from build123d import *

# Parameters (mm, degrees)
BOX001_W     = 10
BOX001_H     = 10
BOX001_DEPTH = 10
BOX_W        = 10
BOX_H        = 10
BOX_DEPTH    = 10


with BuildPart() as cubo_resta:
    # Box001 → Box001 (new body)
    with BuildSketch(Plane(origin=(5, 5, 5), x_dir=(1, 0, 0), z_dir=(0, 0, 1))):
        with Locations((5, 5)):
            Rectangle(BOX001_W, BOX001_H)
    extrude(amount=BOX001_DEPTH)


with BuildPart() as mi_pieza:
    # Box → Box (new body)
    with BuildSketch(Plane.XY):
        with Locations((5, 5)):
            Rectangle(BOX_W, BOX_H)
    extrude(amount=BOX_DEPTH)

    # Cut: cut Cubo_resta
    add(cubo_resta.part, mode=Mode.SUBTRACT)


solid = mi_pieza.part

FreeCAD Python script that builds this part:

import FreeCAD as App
import Part
import Sketcher

V = App.Vector


def add_polygon(sketch, points):
    """Adds a closed chain of lines whose ends are joined by coincident constraints."""
    first, n = sketch.GeometryCount, len(points)
    for a, b in zip(points, points[1:] + points[:1]):
        sketch.addGeometry(Part.LineSegment(App.Vector(*a, 0), App.Vector(*b, 0)), False)
    for i in range(n):
        sketch.addConstraint(Sketcher.Constraint("Coincident", first + i, 2, first + (i + 1) % n, 1))

doc = App.newDocument("Part")
params = doc.addObject("Spreadsheet::Sheet", "Params")
for row, (alias, value) in enumerate([
    ("sketch1_width", "10 mm"),
    ("pad1_length", "10 mm"),
    ("sketch2_width", "10 mm"),
    ("pad2_length", "10 mm"),
], start=1):
    params.set(f"A{row}", alias)
    params.set(f"B{row}", "=" + value)
    params.setAlias(f"B{row}", alias)

body = doc.addObject("PartDesign::Body", "Body")

# Sketch on XY plane
sketch1 = doc.addObject("Sketcher::SketchObject", "Sketch")
body.addObject(sketch1)
sketch1.AttachmentSupport = (doc.XY_Plane, [""])
sketch1.MapMode = "FlatFace"
sketch1.AttachmentOffset = App.Placement(V(0, 0, 5), App.Rotation())
add_polygon(sketch1, [(5, 15), (5, 5), (15, 5), (15, 15)])  # lines 0-3
sketch1.addConstraint([
    Sketcher.Constraint("Vertical", 0),
    Sketcher.Constraint("Horizontal", 1),
    Sketcher.Constraint("Vertical", 2),
    Sketcher.Constraint("Horizontal", 3),
    Sketcher.Constraint("Equal", 3, 0),
    Sketcher.Constraint("DistanceX", 1, 1, 1, 2, 10.0),
    Sketcher.Constraint("DistanceX", -1, 1, 0, 2, 5.0),
    Sketcher.Constraint("DistanceY", -1, 1, 0, 2, 5.0),
])
sketch1.setExpression("Constraints[9]", "Params.sketch1_width")
pad1 = doc.addObject("PartDesign::Pad", "Pad")
body.addObject(pad1)
pad1.Profile = sketch1
pad1.setExpression("Length", "Params.pad1_length")
body2 = doc.addObject("PartDesign::Body", "Body001")

# Sketch on XY plane
sketch2 = doc.addObject("Sketcher::SketchObject", "Sketch001")
body2.addObject(sketch2)
sketch2.AttachmentSupport = (doc.getObject("XY_Plane001"), [""])
sketch2.MapMode = "FlatFace"
add_polygon(sketch2, [(0, 10), (0, 0), (10, 0), (10, 10)])  # lines 0-3
sketch2.addConstraint([
    Sketcher.Constraint("Vertical", 0),
    Sketcher.Constraint("Horizontal", 1),
    Sketcher.Constraint("Vertical", 2),
    Sketcher.Constraint("Horizontal", 3),
    Sketcher.Constraint("Coincident", 0, 2, -1, 1),
    Sketcher.Constraint("Equal", 3, 0),
    Sketcher.Constraint("DistanceX", 1, 1, 1, 2, 10.0),
])
sketch2.setExpression("Constraints[10]", "Params.sketch2_width")
pad2 = doc.addObject("PartDesign::Pad", "Pad001")
body2.addObject(pad2)
pad2.Profile = sketch2
pad2.setExpression("Length", "Params.pad2_length")
doc.recompute()

boolean = doc.addObject("PartDesign::Boolean", "Boolean")
body2.addObject(boolean)
boolean.Type = "Cut"
boolean.addObjects([body])

doc.recompute()
